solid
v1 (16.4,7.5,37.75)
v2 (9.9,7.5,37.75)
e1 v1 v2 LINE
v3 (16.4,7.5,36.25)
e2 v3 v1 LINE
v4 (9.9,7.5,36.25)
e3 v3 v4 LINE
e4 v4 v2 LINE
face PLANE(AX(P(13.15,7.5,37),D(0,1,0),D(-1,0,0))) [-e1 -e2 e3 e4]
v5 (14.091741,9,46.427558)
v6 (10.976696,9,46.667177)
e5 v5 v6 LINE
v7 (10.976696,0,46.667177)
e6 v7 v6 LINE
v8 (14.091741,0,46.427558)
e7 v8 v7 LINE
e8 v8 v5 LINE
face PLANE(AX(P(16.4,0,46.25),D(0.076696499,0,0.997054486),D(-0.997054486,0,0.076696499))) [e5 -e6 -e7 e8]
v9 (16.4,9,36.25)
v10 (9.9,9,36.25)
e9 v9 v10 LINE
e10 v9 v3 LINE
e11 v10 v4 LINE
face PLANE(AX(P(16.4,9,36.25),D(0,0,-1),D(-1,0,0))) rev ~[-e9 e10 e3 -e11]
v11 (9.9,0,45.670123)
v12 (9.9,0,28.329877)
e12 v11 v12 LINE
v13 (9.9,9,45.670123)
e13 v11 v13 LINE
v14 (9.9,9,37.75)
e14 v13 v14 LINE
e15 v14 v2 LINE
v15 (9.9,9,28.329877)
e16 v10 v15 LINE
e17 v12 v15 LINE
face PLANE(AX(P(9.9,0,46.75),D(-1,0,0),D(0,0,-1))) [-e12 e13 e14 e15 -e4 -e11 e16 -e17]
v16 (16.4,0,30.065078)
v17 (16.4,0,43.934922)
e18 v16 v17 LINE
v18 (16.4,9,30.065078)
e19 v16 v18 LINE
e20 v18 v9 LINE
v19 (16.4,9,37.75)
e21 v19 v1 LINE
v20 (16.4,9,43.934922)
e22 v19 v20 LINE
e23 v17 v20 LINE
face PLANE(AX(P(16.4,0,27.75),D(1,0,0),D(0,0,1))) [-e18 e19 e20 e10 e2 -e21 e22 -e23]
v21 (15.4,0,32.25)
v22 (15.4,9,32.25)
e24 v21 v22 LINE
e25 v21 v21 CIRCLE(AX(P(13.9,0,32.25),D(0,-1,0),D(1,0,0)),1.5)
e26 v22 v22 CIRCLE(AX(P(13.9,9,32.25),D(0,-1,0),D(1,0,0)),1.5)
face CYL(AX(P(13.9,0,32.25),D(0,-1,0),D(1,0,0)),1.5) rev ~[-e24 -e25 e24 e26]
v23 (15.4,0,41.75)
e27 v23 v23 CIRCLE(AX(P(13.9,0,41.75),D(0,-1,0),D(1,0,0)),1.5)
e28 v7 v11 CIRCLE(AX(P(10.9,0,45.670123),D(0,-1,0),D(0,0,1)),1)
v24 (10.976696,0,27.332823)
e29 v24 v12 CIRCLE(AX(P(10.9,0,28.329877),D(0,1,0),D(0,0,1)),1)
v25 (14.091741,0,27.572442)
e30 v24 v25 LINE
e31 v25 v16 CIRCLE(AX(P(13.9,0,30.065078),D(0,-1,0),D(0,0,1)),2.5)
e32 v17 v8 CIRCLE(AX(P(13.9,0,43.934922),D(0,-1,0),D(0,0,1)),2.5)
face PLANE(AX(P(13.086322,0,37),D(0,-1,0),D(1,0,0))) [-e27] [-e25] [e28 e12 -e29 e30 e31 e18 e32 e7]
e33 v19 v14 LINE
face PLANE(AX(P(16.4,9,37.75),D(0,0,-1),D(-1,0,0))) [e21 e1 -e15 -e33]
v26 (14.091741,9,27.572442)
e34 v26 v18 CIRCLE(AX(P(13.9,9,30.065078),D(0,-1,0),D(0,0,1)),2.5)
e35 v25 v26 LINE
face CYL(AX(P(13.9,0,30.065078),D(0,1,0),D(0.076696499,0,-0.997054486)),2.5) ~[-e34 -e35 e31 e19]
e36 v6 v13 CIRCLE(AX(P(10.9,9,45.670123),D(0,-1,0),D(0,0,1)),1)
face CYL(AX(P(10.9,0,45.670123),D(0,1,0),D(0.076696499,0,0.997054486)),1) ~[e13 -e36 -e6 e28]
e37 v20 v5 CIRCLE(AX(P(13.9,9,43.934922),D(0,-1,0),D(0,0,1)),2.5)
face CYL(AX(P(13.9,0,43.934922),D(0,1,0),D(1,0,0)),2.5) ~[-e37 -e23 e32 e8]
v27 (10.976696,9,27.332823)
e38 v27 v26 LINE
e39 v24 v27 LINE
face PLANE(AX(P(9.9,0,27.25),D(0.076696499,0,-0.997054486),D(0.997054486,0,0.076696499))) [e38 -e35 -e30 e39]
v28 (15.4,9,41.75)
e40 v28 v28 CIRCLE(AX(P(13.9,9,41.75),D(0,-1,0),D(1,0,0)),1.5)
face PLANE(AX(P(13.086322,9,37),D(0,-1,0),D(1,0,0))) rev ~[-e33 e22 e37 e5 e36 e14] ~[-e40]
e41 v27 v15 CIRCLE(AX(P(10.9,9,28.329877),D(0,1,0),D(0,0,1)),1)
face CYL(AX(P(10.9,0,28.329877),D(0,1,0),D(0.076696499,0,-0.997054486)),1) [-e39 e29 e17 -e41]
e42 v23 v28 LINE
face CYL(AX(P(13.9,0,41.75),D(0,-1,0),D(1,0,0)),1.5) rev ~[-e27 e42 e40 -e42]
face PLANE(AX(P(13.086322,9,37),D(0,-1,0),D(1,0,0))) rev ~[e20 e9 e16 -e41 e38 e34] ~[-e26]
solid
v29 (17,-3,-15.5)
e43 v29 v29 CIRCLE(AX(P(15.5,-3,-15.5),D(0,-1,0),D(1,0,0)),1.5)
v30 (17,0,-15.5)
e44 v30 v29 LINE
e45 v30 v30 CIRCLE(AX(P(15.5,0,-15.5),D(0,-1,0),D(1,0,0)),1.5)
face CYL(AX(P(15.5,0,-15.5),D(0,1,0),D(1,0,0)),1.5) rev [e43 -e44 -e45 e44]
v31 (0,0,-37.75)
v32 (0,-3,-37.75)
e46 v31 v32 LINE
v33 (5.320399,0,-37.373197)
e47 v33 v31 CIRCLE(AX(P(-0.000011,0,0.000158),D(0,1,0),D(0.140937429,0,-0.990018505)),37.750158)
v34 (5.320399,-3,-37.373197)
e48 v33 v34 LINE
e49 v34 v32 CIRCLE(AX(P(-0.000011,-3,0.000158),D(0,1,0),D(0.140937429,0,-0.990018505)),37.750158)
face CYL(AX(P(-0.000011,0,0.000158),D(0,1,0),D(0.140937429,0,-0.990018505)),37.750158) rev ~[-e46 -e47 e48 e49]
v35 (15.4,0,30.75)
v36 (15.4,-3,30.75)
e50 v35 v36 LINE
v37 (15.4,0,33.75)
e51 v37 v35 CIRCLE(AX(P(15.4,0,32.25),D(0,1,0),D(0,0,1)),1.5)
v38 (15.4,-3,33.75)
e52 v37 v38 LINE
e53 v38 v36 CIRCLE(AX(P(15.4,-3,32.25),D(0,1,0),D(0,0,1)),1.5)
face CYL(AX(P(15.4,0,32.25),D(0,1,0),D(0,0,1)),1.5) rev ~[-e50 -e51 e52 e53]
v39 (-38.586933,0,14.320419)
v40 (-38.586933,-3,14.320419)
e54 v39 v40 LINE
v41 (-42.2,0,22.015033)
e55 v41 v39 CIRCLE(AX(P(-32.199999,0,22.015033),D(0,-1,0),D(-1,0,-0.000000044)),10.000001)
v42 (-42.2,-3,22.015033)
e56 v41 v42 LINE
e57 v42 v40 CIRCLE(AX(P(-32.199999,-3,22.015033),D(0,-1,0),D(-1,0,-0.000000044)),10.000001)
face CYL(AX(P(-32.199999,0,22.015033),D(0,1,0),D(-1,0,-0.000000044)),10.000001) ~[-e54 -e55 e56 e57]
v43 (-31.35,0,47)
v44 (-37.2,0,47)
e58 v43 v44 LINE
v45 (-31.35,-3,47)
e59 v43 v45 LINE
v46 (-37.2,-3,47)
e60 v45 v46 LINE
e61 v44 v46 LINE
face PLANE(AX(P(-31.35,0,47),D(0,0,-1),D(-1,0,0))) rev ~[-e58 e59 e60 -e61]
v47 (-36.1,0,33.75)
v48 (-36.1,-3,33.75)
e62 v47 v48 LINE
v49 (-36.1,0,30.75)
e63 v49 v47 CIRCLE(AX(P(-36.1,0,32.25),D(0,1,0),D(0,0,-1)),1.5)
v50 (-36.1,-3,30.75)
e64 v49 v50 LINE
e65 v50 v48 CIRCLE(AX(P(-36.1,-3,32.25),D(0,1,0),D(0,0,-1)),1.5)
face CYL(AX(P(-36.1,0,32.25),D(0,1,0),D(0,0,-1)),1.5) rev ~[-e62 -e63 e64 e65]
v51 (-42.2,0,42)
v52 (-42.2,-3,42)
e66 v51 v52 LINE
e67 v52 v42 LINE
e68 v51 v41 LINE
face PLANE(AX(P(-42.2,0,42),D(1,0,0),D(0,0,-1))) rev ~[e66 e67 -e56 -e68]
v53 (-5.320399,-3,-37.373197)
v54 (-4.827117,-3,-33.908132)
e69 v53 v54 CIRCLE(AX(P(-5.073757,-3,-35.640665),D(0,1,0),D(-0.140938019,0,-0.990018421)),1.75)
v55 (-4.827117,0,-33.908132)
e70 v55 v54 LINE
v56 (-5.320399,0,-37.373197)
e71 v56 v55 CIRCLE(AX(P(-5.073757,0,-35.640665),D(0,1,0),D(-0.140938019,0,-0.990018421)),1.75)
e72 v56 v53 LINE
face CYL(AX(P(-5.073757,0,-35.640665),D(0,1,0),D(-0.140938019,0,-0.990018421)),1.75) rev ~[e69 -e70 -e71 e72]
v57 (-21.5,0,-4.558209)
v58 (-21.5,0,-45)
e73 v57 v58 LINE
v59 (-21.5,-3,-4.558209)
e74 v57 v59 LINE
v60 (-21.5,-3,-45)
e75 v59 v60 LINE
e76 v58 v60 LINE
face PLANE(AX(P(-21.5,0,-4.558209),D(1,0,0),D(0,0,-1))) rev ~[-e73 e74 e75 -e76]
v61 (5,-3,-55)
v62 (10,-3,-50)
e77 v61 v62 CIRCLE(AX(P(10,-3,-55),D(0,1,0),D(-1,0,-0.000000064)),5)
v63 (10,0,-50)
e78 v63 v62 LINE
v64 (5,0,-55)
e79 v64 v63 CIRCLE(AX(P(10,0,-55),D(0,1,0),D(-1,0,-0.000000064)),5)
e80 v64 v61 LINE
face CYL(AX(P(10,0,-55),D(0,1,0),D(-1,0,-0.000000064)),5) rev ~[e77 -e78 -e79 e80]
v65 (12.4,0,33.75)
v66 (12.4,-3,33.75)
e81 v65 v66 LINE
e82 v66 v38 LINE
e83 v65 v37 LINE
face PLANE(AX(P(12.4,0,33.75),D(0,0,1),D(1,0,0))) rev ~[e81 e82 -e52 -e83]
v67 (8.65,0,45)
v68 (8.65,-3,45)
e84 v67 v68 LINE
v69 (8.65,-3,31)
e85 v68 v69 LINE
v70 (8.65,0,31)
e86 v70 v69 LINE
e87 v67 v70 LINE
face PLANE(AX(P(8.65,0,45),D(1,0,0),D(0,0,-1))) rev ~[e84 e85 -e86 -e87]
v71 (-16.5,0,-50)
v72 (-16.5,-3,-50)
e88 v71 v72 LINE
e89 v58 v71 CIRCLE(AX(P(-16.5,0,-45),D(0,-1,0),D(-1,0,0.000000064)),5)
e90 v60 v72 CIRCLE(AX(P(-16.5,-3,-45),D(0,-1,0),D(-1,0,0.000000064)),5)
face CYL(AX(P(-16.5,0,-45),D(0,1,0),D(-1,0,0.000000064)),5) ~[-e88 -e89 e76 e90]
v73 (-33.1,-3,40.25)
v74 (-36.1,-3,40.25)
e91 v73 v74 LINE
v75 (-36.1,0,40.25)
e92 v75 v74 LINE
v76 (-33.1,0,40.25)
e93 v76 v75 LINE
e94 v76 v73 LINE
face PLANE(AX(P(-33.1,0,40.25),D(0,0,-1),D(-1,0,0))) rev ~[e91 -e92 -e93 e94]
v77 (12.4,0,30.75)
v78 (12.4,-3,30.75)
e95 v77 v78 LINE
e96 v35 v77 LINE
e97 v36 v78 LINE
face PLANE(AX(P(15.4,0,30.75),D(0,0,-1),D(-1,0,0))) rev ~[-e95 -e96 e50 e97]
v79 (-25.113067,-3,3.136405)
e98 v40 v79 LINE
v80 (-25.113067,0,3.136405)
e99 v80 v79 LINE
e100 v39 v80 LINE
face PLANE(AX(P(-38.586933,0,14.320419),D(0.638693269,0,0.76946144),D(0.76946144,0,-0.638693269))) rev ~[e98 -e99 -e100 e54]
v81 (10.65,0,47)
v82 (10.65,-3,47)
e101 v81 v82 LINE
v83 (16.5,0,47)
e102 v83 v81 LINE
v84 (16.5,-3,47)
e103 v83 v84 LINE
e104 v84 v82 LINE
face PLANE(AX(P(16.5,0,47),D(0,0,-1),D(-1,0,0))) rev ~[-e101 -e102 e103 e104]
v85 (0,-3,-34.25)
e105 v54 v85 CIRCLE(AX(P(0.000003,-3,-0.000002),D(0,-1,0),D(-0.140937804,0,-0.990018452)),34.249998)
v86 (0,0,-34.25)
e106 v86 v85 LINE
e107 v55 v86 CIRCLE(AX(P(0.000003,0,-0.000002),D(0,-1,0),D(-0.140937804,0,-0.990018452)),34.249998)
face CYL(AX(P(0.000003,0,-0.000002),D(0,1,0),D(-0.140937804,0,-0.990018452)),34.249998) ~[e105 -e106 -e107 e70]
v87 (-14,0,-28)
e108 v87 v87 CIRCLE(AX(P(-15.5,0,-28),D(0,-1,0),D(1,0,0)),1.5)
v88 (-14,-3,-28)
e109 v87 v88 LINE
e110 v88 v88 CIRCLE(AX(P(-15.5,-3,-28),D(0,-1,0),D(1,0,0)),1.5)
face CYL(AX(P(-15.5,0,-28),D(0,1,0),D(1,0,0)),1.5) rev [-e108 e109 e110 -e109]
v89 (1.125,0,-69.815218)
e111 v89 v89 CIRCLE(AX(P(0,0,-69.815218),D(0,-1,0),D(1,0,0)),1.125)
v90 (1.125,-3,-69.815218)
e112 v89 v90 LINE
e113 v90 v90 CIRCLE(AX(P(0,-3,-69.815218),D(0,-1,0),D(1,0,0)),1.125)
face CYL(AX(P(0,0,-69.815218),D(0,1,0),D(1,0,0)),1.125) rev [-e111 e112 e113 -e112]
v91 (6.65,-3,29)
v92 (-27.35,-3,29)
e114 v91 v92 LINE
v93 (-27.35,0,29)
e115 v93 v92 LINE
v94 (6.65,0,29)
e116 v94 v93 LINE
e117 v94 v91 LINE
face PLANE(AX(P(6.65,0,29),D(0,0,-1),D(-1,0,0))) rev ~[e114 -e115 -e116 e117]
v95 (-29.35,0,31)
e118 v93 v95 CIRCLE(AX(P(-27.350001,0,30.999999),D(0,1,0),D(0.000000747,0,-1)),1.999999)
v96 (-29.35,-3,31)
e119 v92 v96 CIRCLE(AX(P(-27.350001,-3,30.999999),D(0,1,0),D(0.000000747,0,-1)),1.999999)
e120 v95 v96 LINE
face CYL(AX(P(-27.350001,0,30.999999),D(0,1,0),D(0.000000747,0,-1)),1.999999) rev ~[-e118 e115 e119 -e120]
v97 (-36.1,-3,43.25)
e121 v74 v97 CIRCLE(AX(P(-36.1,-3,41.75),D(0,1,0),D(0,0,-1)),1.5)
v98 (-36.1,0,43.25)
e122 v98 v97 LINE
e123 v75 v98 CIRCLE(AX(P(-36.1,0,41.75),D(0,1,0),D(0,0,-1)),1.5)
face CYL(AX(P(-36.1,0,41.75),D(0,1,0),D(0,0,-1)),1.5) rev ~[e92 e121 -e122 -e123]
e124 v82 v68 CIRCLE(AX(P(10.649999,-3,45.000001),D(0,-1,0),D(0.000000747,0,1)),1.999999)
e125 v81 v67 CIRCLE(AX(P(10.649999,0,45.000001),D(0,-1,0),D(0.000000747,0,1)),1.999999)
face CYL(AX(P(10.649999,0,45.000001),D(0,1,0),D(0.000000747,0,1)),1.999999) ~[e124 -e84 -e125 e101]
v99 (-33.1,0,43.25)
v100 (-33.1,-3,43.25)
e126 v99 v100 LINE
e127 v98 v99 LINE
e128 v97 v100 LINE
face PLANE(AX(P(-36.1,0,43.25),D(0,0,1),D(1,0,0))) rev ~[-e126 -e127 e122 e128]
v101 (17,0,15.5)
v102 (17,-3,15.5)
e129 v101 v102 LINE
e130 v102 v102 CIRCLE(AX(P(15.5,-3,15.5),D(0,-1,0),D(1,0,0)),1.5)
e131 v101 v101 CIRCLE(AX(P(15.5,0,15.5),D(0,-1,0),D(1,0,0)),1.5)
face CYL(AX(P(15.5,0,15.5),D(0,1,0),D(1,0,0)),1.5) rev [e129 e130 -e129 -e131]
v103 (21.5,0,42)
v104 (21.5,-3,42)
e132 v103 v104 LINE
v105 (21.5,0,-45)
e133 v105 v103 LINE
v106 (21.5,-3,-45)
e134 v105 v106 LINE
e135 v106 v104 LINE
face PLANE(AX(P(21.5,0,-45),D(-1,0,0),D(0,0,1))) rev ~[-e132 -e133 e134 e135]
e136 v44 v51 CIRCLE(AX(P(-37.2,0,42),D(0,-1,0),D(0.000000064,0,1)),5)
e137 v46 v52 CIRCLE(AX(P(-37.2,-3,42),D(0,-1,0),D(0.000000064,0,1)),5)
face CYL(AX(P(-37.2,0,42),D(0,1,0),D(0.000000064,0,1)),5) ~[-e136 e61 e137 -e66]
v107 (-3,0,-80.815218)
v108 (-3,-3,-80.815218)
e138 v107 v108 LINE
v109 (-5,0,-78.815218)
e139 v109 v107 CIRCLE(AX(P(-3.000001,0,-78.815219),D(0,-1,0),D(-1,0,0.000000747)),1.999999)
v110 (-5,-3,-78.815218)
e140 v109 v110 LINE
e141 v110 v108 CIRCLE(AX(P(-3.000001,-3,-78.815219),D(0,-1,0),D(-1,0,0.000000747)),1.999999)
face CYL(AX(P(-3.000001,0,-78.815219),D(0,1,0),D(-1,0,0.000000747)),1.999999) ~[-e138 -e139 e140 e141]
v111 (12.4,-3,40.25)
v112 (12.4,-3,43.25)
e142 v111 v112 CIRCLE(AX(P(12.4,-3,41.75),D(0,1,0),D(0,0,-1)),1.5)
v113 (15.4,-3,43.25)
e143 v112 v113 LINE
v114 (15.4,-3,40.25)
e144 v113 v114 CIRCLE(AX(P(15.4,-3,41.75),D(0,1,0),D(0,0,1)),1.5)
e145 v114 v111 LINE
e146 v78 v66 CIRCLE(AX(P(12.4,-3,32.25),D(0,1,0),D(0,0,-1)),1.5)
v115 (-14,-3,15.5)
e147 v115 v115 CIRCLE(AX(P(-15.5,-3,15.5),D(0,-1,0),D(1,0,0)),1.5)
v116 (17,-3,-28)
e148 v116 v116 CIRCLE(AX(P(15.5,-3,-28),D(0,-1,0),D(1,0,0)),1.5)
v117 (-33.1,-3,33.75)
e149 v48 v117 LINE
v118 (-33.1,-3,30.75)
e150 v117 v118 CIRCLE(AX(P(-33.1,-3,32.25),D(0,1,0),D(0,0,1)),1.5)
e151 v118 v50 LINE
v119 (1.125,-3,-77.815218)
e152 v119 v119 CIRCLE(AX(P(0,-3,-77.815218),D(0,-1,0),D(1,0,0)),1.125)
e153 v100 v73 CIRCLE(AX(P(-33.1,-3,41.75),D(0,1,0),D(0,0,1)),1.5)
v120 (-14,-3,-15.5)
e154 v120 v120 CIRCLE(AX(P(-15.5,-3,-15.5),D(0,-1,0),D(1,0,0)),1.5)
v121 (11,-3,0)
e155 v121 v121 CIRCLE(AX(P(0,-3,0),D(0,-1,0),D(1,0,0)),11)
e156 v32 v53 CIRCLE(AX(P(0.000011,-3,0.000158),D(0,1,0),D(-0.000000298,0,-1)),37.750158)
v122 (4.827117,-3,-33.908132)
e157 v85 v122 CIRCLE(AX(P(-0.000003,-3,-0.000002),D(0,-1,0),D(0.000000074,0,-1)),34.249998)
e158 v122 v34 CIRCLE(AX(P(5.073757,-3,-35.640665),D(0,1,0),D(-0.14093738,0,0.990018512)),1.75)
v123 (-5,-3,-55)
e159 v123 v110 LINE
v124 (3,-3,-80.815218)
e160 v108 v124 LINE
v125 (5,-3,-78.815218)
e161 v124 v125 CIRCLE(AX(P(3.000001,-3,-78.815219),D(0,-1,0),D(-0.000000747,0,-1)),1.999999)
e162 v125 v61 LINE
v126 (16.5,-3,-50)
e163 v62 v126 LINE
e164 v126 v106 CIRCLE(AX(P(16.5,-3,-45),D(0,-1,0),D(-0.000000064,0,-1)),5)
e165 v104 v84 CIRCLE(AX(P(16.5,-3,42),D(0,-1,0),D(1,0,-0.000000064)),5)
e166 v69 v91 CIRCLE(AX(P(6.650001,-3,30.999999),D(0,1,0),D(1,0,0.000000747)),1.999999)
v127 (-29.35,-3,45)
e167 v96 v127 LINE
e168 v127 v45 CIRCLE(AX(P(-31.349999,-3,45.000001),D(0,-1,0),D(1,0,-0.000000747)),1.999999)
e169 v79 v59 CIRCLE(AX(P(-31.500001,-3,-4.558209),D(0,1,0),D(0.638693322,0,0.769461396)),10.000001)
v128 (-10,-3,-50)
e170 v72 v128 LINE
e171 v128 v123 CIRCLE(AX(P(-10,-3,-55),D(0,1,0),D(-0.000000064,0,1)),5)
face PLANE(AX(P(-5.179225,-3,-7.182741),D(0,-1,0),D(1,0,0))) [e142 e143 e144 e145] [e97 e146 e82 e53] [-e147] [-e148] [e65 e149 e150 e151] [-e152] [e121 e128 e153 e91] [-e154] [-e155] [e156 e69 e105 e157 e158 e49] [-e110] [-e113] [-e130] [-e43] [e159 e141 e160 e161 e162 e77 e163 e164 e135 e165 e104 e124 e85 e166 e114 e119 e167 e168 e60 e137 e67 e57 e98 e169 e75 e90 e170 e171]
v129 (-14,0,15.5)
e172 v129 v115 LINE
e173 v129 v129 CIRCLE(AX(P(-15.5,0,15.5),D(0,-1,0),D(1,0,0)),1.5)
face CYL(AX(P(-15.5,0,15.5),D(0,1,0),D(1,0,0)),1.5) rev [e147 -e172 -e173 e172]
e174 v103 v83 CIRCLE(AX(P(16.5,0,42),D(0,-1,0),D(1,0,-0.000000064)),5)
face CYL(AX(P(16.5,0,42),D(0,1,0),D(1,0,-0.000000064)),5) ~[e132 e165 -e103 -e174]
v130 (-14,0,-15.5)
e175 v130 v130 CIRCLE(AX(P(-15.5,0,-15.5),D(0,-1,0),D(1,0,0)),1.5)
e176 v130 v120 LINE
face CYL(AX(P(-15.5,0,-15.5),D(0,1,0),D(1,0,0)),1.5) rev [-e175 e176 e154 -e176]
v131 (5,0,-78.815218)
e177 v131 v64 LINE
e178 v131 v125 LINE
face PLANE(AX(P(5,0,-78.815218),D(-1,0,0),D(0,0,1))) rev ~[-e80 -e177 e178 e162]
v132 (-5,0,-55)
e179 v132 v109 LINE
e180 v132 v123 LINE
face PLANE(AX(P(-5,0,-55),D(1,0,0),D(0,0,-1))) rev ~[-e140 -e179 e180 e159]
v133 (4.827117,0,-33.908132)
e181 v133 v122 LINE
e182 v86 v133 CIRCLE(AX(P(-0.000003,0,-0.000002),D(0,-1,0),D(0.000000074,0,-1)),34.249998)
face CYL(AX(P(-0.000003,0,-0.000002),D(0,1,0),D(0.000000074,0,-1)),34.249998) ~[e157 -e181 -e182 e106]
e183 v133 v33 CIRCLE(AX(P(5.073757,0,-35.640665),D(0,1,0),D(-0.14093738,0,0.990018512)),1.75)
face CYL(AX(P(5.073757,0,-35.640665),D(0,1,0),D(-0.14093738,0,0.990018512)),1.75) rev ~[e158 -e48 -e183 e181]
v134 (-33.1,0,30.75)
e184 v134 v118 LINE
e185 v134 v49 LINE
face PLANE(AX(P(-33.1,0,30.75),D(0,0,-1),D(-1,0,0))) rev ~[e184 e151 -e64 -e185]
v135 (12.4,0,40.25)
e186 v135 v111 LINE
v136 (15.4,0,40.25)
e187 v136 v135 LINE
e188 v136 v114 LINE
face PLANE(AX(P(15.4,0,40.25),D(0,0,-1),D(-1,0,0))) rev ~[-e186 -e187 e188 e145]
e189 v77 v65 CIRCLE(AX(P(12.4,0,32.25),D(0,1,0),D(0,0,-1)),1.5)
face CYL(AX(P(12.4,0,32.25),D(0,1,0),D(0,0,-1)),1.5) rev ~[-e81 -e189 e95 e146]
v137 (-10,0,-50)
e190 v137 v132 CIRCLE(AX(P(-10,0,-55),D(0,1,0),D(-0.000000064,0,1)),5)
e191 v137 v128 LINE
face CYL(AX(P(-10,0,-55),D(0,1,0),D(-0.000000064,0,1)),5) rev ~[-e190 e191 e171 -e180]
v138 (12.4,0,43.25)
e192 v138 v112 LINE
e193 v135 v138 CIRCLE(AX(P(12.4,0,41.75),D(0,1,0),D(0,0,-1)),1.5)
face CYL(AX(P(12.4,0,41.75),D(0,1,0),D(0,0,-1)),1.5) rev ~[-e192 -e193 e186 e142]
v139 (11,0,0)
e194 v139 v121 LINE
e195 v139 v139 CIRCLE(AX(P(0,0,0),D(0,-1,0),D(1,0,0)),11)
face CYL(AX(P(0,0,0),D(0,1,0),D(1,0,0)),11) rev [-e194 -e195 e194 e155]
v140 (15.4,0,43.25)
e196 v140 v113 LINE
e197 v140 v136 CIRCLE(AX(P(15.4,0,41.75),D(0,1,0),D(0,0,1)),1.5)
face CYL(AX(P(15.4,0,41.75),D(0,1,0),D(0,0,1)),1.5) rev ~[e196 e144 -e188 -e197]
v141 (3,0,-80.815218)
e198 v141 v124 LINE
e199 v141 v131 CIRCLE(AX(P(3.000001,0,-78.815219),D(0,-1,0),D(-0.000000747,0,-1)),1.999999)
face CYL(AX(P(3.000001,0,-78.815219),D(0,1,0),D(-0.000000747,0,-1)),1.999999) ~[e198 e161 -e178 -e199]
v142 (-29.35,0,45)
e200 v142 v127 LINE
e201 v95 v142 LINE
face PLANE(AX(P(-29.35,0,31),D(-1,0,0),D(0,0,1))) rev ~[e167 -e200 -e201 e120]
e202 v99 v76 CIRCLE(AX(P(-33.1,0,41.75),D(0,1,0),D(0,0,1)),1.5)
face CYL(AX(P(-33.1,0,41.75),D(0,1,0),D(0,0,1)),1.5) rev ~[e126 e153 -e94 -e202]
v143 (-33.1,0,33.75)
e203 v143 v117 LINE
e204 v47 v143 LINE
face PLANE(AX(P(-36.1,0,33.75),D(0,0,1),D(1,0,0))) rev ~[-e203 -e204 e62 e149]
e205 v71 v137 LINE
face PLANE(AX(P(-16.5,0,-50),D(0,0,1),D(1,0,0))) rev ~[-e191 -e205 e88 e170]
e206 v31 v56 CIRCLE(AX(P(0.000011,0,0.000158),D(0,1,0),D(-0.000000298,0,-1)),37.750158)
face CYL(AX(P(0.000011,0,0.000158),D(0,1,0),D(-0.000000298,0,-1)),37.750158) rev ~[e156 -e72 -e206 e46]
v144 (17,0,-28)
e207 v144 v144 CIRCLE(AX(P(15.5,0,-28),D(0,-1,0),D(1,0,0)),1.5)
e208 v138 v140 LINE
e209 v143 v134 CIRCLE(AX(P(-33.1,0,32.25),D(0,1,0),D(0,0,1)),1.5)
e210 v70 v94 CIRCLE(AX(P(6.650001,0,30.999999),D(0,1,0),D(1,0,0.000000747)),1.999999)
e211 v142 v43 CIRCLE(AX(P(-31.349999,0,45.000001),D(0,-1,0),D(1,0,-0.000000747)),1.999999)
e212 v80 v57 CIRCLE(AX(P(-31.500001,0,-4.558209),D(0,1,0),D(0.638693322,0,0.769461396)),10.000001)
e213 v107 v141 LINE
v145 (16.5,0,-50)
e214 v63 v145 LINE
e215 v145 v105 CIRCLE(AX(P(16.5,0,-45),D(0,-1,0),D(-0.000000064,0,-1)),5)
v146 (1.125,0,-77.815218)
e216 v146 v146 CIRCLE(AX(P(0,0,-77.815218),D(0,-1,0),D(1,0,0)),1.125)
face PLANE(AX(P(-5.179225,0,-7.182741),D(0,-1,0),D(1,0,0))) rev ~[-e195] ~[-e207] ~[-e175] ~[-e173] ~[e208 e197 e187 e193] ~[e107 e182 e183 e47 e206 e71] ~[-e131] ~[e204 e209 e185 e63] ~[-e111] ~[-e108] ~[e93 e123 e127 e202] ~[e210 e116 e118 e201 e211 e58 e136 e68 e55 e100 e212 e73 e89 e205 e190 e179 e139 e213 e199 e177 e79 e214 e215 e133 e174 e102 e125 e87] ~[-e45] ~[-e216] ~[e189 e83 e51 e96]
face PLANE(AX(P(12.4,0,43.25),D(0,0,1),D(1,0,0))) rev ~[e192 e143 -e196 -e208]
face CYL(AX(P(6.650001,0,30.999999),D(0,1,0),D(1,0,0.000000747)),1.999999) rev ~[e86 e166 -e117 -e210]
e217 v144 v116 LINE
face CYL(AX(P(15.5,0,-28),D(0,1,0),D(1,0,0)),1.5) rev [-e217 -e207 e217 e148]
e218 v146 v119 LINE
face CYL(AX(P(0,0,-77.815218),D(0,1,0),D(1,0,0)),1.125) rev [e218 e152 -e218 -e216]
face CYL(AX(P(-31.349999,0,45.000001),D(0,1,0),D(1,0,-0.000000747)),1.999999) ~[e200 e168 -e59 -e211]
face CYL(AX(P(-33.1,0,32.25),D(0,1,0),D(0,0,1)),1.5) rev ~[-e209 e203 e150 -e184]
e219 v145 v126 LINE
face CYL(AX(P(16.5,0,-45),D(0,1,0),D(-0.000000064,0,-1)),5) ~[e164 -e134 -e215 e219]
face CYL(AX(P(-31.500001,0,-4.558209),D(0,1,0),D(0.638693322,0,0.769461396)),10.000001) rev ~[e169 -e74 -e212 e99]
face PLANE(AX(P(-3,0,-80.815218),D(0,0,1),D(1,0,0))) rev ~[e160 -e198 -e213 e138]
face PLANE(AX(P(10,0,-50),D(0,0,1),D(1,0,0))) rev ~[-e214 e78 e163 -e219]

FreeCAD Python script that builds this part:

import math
import FreeCAD as App
import Part
import Sketcher
Q = App.Units.Quantity


def edges_at(feature, points):
    """Names of the edges that pass closest to the given points."""
    edges = feature.Shape.Edges
    near = lambda p: min(range(len(edges)), key=lambda i: edges[i].distToShape(Part.Vertex(*p))[0])
    return sorted({f"Edge{near(p) + 1}" for p in points})


def add_polygon(sketch, points):
    """Adds a closed chain of lines whose ends are joined by coincident constraints."""
    first, n = sketch.GeometryCount, len(points)
    for a, b in zip(points, points[1:] + points[:1]):
        sketch.addGeometry(Part.LineSegment(App.Vector(*a, 0), App.Vector(*b, 0)), False)
    for i in range(n):
        sketch.addConstraint(Sketcher.Constraint("Coincident", first + i, 2, first + (i + 1) % n, 1))

doc = App.newDocument("Part")
body = doc.addObject("PartDesign::Body", "Body")

# Sketch on XZ plane
sketch1 = doc.addObject("Sketcher::SketchObject", "Sketch")
body.addObject(sketch1)
sketch1.AttachmentSupport = (doc.XZ_Plane, [""])
sketch1.MapMode = "FlatFace"
sketch1.addGeometry([
    Part.ArcOfCircle(Part.Circle(App.Vector(16.5, -45, 0), App.Vector(0, 0, 1), 5), math.radians(-90.000004), math.radians(0.000004)),  # 0
    Part.LineSegment(App.Vector(21.5, -45, 0), App.Vector(21.5, 42, 0)),  # 1
    Part.ArcOfCircle(Part.Circle(App.Vector(16.5, 42, 0), App.Vector(0, 0, 1), 5), math.radians(-0.000004), math.radians(90.000004)),  # 2
    Part.LineSegment(App.Vector(16.5, 47, 0), App.Vector(10.65, 47, 0)),  # 3
    Part.ArcOfCircle(Part.Circle(App.Vector(10.649999, 45.000001, 0), App.Vector(0, 0, 1), 1.999999), math.radians(89.999957), math.radians(180.000043)),  # 4
    Part.LineSegment(App.Vector(8.65, 45, 0), App.Vector(8.65, 31, 0)),  # 5
    Part.ArcOfCircle(Part.Circle(App.Vector(6.650001, 30.999999, 0), App.Vector(0, 0, 1), 1.999999), math.radians(-90.000043), math.radians(0.000043)),  # 6
    Part.LineSegment(App.Vector(6.65, 29, 0), App.Vector(-27.35, 29, 0)),  # 7
    Part.ArcOfCircle(Part.Circle(App.Vector(-27.350001, 30.999999, 0), App.Vector(0, 0, 1), 1.999999), math.radians(179.999957), math.radians(270.000043)),  # 8
    Part.LineSegment(App.Vector(-29.35, 31, 0), App.Vector(-29.35, 45, 0)),  # 9
    Part.ArcOfCircle(Part.Circle(App.Vector(-31.349999, 45.000001, 0), App.Vector(0, 0, 1), 1.999999), math.radians(-0.000043), math.radians(90.000043)),  # 10
    Part.LineSegment(App.Vector(-31.35, 47, 0), App.Vector(-37.2, 47, 0)),  # 11
    Part.ArcOfCircle(Part.Circle(App.Vector(-37.2, 42, 0), App.Vector(0, 0, 1), 5), math.radians(89.999996), math.radians(180.000004)),  # 12
    Part.LineSegment(App.Vector(-42.2, 42, 0), App.Vector(-42.2, 22.015033, 0)),  # 13
    Part.ArcOfCircle(Part.Circle(App.Vector(-32.199999, 22.015033, 0), App.Vector(0, 0, 1), 10.000001), math.radians(-179.999998), math.radians(-129.694453)),  # 14
    Part.LineSegment(App.Vector(-38.586933, 14.320419, 0), App.Vector(-25.113067, 3.136405, 0)),  # 15
    Part.ArcOfCircle(Part.Circle(App.Vector(-31.500001, -4.558209, 0), App.Vector(0, 0, 1), 10.000001), math.radians(0.000002), math.radians(50.305547)),  # 16
    Part.LineSegment(App.Vector(-21.5, -4.558209, 0), App.Vector(-21.5, -45, 0)),  # 17
    Part.ArcOfCircle(Part.Circle(App.Vector(-16.5, -45, 0), App.Vector(0, 0, 1), 5), math.radians(179.999996), math.radians(270.000004)),  # 18
    Part.LineSegment(App.Vector(-16.5, -50, 0), App.Vector(-10, -50, 0)),  # 19
    Part.ArcOfCircle(Part.Circle(App.Vector(-10, -55, 0), App.Vector(0, 0, 1), 5), math.radians(-0.000004), math.radians(90.000004)),  # 20
    Part.LineSegment(App.Vector(-5, -55, 0), App.Vector(-5, -78.815218, 0)),  # 21
    Part.ArcOfCircle(Part.Circle(App.Vector(-3.000001, -78.815219, 0), App.Vector(0, 0, 1), 1.999999), math.radians(179.999957), math.radians(270.000043)),  # 22
    Part.LineSegment(App.Vector(-3, -80.815218, 0), App.Vector(3, -80.815218, 0)),  # 23
    Part.ArcOfCircle(Part.Circle(App.Vector(3.000001, -78.815219, 0), App.Vector(0, 0, 1), 1.999999), math.radians(-90.000043), math.radians(0.000043)),  # 24
    Part.LineSegment(App.Vector(5, -78.815218, 0), App.Vector(5, -55, 0)),  # 25
    Part.ArcOfCircle(Part.Circle(App.Vector(10, -55, 0), App.Vector(0, 0, 1), 5), math.radians(89.999996), math.radians(180.000004)),  # 26
    Part.LineSegment(App.Vector(10, -50, 0), App.Vector(16.5, -50, 0)),  # 27
    Part.Circle(App.Vector(-15.5, -28, 0), App.Vector(0, 0, 1), 1.5),  # 28
    Part.Circle(App.Vector(0, -77.815218, 0), App.Vector(0, 0, 1), 1.125),  # 29
    Part.Circle(App.Vector(0, -69.815218, 0), App.Vector(0, 0, 1), 1.125),  # 30
    Part.ArcOfCircle(Part.Circle(App.Vector(0.000003, -0.000002, 0), App.Vector(0, 0, 1), 34.249998), math.radians(-98.102117), math.radians(-90.000004)),  # 31
    Part.ArcOfCircle(Part.Circle(App.Vector(-0.000003, -0.000002, 0), App.Vector(0, 0, 1), 34.249998), math.radians(-89.999996), math.radians(-81.897883)),  # 32
    Part.ArcOfCircle(Part.Circle(App.Vector(5.073757, -35.640665, 0), App.Vector(0, 0, 1), 1.75), math.radians(-81.897871), math.radians(98.102092)),  # 33
    Part.ArcOfCircle(Part.Circle(App.Vector(-0.000011, 0.000158, 0), App.Vector(0, 0, 1), 37.750158), math.radians(-89.999983), math.radians(-81.897905)),  # 34
    Part.ArcOfCircle(Part.Circle(App.Vector(0.000011, 0.000158, 0), App.Vector(0, 0, 1), 37.750158), math.radians(-98.102095), math.radians(-90.000017)),  # 35
    Part.ArcOfCircle(Part.Circle(App.Vector(-5.073757, -35.640665, 0), App.Vector(0, 0, 1), 1.75), math.radians(81.897908), math.radians(261.897871)),  # 36
    Part.Circle(App.Vector(15.5, -28, 0), App.Vector(0, 0, 1), 1.5),  # 37
    Part.Circle(App.Vector(-15.5, -15.5, 0), App.Vector(0, 0, 1), 1.5),  # 38
    Part.LineSegment(App.Vector(-33.1, 30.75, 0), App.Vector(-36.1, 30.75, 0)),  # 39
    Part.ArcOfCircle(Part.Circle(App.Vector(-36.1, 32.25, 0), App.Vector(0, 0, 1), 1.5), math.radians(90), math.radians(270)),  # 40
    Part.LineSegment(App.Vector(-36.1, 33.75, 0), App.Vector(-33.1, 33.75, 0)),  # 41
    Part.ArcOfCircle(Part.Circle(App.Vector(-33.1, 32.25, 0), App.Vector(0, 0, 1), 1.5), math.radians(-90), math.radians(90)),  # 42
    Part.ArcOfCircle(Part.Circle(App.Vector(-33.1, 41.75, 0), App.Vector(0, 0, 1), 1.5), math.radians(-90), math.radians(90)),  # 43
    Part.LineSegment(App.Vector(-33.1, 40.25, 0), App.Vector(-36.1, 40.25, 0)),  # 44
    Part.ArcOfCircle(Part.Circle(App.Vector(-36.1, 41.75, 0), App.Vector(0, 0, 1), 1.5), math.radians(90), math.radians(270)),  # 45
    Part.LineSegment(App.Vector(-36.1, 43.25, 0), App.Vector(-33.1, 43.25, 0)),  # 46
    Part.Circle(App.Vector(-15.5, 15.5, 0), App.Vector(0, 0, 1), 1.5),  # 47
    Part.Circle(App.Vector(0, 0, 0), App.Vector(0, 0, 1), 11),  # 48
    Part.Circle(App.Vector(15.5, -15.5, 0), App.Vector(0, 0, 1), 1.5),  # 49
    Part.Circle(App.Vector(15.5, 15.5, 0), App.Vector(0, 0, 1), 1.5),  # 50
    Part.ArcOfCircle(Part.Circle(App.Vector(15.4, 32.25, 0), App.Vector(0, 0, 1), 1.5), math.radians(-90), math.radians(90)),  # 51
    Part.LineSegment(App.Vector(15.4, 30.75, 0), App.Vector(12.4, 30.75, 0)),  # 52
    Part.ArcOfCircle(Part.Circle(App.Vector(12.4, 32.25, 0), App.Vector(0, 0, 1), 1.5), math.radians(90), math.radians(270)),  # 53
    Part.LineSegment(App.Vector(12.4, 33.75, 0), App.Vector(15.4, 33.75, 0)),  # 54
    Part.ArcOfCircle(Part.Circle(App.Vector(15.4, 41.75, 0), App.Vector(0, 0, 1), 1.5), math.radians(-90), math.radians(90)),  # 55
    Part.LineSegment(App.Vector(15.4, 40.25, 0), App.Vector(12.4, 40.25, 0)),  # 56
    Part.ArcOfCircle(Part.Circle(App.Vector(12.4, 41.75, 0), App.Vector(0, 0, 1), 1.5), math.radians(90), math.radians(270)),  # 57
    Part.LineSegment(App.Vector(12.4, 43.25, 0), App.Vector(15.4, 43.25, 0)),  # 58
], False)
sketch1.addConstraint([
    Sketcher.Constraint("Coincident", 0, 2, 1, 1),
    Sketcher.Constraint("Coincident", 1, 2, 2, 1),
    Sketcher.Constraint("Coincident", 2, 2, 3, 1),
    Sketcher.Constraint("Coincident", 3, 2, 4, 1),
    Sketcher.Constraint("Coincident", 4, 2, 5, 1),
    Sketcher.Constraint("Coincident", 5, 2, 6, 2),
    Sketcher.Constraint("Coincident", 6, 1, 7, 1),
    Sketcher.Constraint("Coincident", 7, 2, 8, 2),
    Sketcher.Constraint("Coincident", 8, 1, 9, 1),
    Sketcher.Constraint("Coincident", 9, 2, 10, 1),
    Sketcher.Constraint("Coincident", 10, 2, 11, 1),
    Sketcher.Constraint("Coincident", 11, 2, 12, 1),
    Sketcher.Constraint("Coincident", 12, 2, 13, 1),
    Sketcher.Constraint("Coincident", 13, 2, 14, 1),
    Sketcher.Constraint("Coincident", 14, 2, 15, 1),
    Sketcher.Constraint("Coincident", 15, 2, 16, 2),
    Sketcher.Constraint("Coincident", 16, 1, 17, 1),
    Sketcher.Constraint("Coincident", 17, 2, 18, 1),
    Sketcher.Constraint("Coincident", 18, 2, 19, 1),
    Sketcher.Constraint("Coincident", 19, 2, 20, 2),
    Sketcher.Constraint("Coincident", 20, 1, 21, 1),
    Sketcher.Constraint("Coincident", 21, 2, 22, 1),
    Sketcher.Constraint("Coincident", 22, 2, 23, 1),
    Sketcher.Constraint("Coincident", 23, 2, 24, 1),
    Sketcher.Constraint("Coincident", 24, 2, 25, 1),
    Sketcher.Constraint("Coincident", 25, 2, 26, 2),
    Sketcher.Constraint("Coincident", 26, 1, 27, 1),
    Sketcher.Constraint("Coincident", 27, 2, 0, 1),
    Sketcher.Constraint("Coincident", 31, 2, 32, 1),
    Sketcher.Constraint("Coincident", 32, 2, 33, 2),
    Sketcher.Constraint("Coincident", 33, 1, 34, 2),
    Sketcher.Constraint("Coincident", 34, 1, 35, 2),
    Sketcher.Constraint("Coincident", 35, 1, 36, 2),
    Sketcher.Constraint("Coincident", 36, 1, 31, 1),
    Sketcher.Constraint("Coincident", 39, 2, 40, 2),
    Sketcher.Constraint("Coincident", 40, 1, 41, 1),
    Sketcher.Constraint("Coincident", 41, 2, 42, 2),
    Sketcher.Constraint("Coincident", 42, 1, 39, 1),
    Sketcher.Constraint("Coincident", 43, 1, 44, 1),
    Sketcher.Constraint("Coincident", 44, 2, 45, 2),
    Sketcher.Constraint("Coincident", 45, 1, 46, 1),
    Sketcher.Constraint("Coincident", 46, 2, 43, 2),
    Sketcher.Constraint("Coincident", 51, 1, 52, 1),
    Sketcher.Constraint("Coincident", 52, 2, 53, 2),
    Sketcher.Constraint("Coincident", 53, 1, 54, 1),
    Sketcher.Constraint("Coincident", 54, 2, 51, 2),
    Sketcher.Constraint("Coincident", 55, 1, 56, 1),
    Sketcher.Constraint("Coincident", 56, 2, 57, 2),
    Sketcher.Constraint("Coincident", 57, 1, 58, 1),
    Sketcher.Constraint("Coincident", 58, 2, 55, 2),
    Sketcher.Constraint("Vertical", 1),
    Sketcher.Constraint("Horizontal", 3),
    Sketcher.Constraint("Vertical", 5),
    Sketcher.Constraint("Horizontal", 7),
    Sketcher.Constraint("Vertical", 9),
    Sketcher.Constraint("Horizontal", 11),
    Sketcher.Constraint("Vertical", 13),
    Sketcher.Constraint("Vertical", 17),
    Sketcher.Constraint("Horizontal", 19),
    Sketcher.Constraint("Vertical", 21),
    Sketcher.Constraint("Horizontal", 23),
    Sketcher.Constraint("Vertical", 25),
    Sketcher.Constraint("Horizontal", 27),
    Sketcher.Constraint("Horizontal", 39),
    Sketcher.Constraint("Horizontal", 41),
    Sketcher.Constraint("Horizontal", 44),
    Sketcher.Constraint("Horizontal", 46),
    Sketcher.Constraint("Horizontal", 52),
    Sketcher.Constraint("Horizontal", 54),
    Sketcher.Constraint("Horizontal", 56),
    Sketcher.Constraint("Horizontal", 58),
    Sketcher.Constraint("Coincident", 31, 3, -1, 1),
    Sketcher.Constraint("Coincident", 32, 3, -1, 1),
    Sketcher.Constraint("Coincident", 48, 3, -1, 1),
    Sketcher.Constraint("PointOnObject", 29, 3, -2),
    Sketcher.Constraint("PointOnObject", 30, 3, -2),
    Sketcher.Constraint("PointOnObject", 31, 2, -2),
    Sketcher.Constraint("PointOnObject", 34, 1, -2),
    Sketcher.Constraint("Diameter", 28, Q("3 mm")),
    Sketcher.Constraint("Diameter", 37, Q("3 mm")),
    Sketcher.Constraint("Diameter", 38, Q("3 mm")),
    Sketcher.Constraint("Diameter", 47, Q("3 mm")),
    Sketcher.Constraint("Diameter", 48, Q("22 mm")),
    Sketcher.Constraint("Diameter", 49, Q("3 mm")),
    Sketcher.Constraint("Diameter", 50, Q("3 mm")),
    Sketcher.Constraint("Radius", 0, Q("5 mm")),
    Sketcher.Constraint("Radius", 2, Q("5 mm")),
    Sketcher.Constraint("Radius", 4, Q("1.999999 mm")),
    Sketcher.Constraint("Radius", 6, Q("1.999999 mm")),
    Sketcher.Constraint("Radius", 8, Q("1.999999 mm")),
    Sketcher.Constraint("Radius", 10, Q("1.999999 mm")),
    Sketcher.Constraint("Radius", 12, Q("5 mm")),
    Sketcher.Constraint("Radius", 14, Q("10.000001 mm")),
    Sketcher.Constraint("Radius", 16, Q("10.000001 mm")),
    Sketcher.Constraint("Radius", 18, Q("5 mm")),
    Sketcher.Constraint("Radius", 20, Q("5 mm")),
    Sketcher.Constraint("Radius", 22, Q("1.999999 mm")),
    Sketcher.Constraint("Radius", 24, Q("1.999999 mm")),
    Sketcher.Constraint("Radius", 26, Q("5 mm")),
    Sketcher.Constraint("Radius", 40, Q("1.5 mm")),
    Sketcher.Constraint("Radius", 43, Q("1.5 mm")),
    Sketcher.Constraint("Radius", 51, Q("1.5 mm")),
    Sketcher.Constraint("Radius", 55, Q("1.5 mm")),
    Sketcher.Constraint("Diameter", 29, Q("2.25 mm")),
    Sketcher.Constraint("Diameter", 30, Q("2.25 mm")),
    Sketcher.Constraint("DistanceX", 7, 2, 7, 1, Q("34 mm")),
    Sketcher.Constraint("DistanceX", 23, 1, 23, 2, Q("6 mm")),
    Sketcher.Constraint("DistanceX", 39, 2, 39, 1, Q("3 mm")),
    Sketcher.Constraint("DistanceX", 41, 1, 41, 2, Q("3 mm")),
    Sketcher.Constraint("DistanceX", 44, 2, 44, 1, Q("3 mm")),
    Sketcher.Constraint("DistanceX", 46, 1, 46, 2, Q("3 mm")),
    Sketcher.Constraint("DistanceX", 52, 2, 52, 1, Q("3 mm")),
    Sketcher.Constraint("DistanceX", 54, 1, 54, 2, Q("3 mm")),
    Sketcher.Constraint("DistanceX", 56, 2, 56, 1, Q("3 mm")),
    Sketcher.Constraint("DistanceX", 58, 1, 58, 2, Q("3 mm")),
    Sketcher.Constraint("DistanceY", 1, 1, 1, 2, Q("87 mm")),
    Sketcher.Constraint("DistanceY", 5, 2, 5, 1, Q("14 mm")),
    Sketcher.Constraint("DistanceY", 9, 1, 9, 2, Q("14 mm")),
    Sketcher.Constraint("Radius", 31, Q("34.249998 mm")),
    Sketcher.Constraint("Radius", 33, Q("1.75 mm")),
    Sketcher.Constraint("Radius", 36, Q("1.75 mm")),
    Sketcher.Constraint("DistanceX", 19, 1, 19, 2, Q("6.5 mm")),
    Sketcher.Constraint("DistanceX", 27, 1, 27, 2, Q("6.5 mm")),
    Sketcher.Constraint("DistanceY", 0, 3, -1, 1, Q("45 mm")),
    Sketcher.Constraint("DistanceY", -1, 1, 2, 3, Q("42 mm")),
    Sketcher.Constraint("DistanceY", -1, 1, 6, 3, Q("30.999999 mm")),
    Sketcher.Constraint("DistanceY", -1, 1, 10, 3, Q("45.000001 mm")),
    Sketcher.Constraint("DistanceY", 18, 3, -1, 1, Q("45 mm")),
    Sketcher.Constraint("DistanceX", 20, 3, -1, 1, Q("10 mm")),
    Sketcher.Constraint("DistanceX", -1, 1, 24, 3, Q("3.000001 mm")),
    Sketcher.Constraint("DistanceY", 28, 3, -1, 1, Q("28 mm")),
    Sketcher.Constraint("DistanceY", 37, 3, -1, 1, Q("28 mm")),
    Sketcher.Constraint("DistanceY", 0, 2, -1, 1, Q("45 mm")),
    Sketcher.Constraint("DistanceY", -1, 1, 4, 2, Q("45 mm")),
    Sketcher.Constraint("DistanceY", -1, 1, 8, 1, Q("31 mm")),
    Sketcher.Constraint("DistanceY", -1, 1, 12, 2, Q("42 mm")),
    Sketcher.Constraint("DistanceY", 17, 2, -1, 1, Q("45 mm")),
    Sketcher.Constraint("DistanceX", 19, 2, -1, 1, Q("10 mm")),
    Sketcher.Constraint("DistanceY", 20, 1, -1, 1, Q("55 mm")),
    Sketcher.Constraint("DistanceX", 22, 2, -1, 1, Q("3 mm")),
    Sketcher.Constraint("DistanceY", 25, 2, -1, 1, Q("55 mm")),
    Sketcher.Constraint("DistanceX", -1, 1, 26, 1, Q("10 mm")),
    Sketcher.Constraint("DistanceX", 3, 2, 3, 1, Q("5.85 mm")),
    Sketcher.Constraint("DistanceX", 11, 2, 11, 1, Q("5.85 mm")),
    Sketcher.Constraint("DistanceX", -1, 1, 0, 3, Q("16.5 mm")),
    Sketcher.Constraint("DistanceX", 12, 3, -1, 1, Q("37.2 mm")),
    Sketcher.Constraint("DistanceX", 16, 3, -1, 1, Q("31.500001 mm")),
    Sketcher.Constraint("DistanceX", 28, 3, -1, 1, Q("15.5 mm")),
    Sketcher.Constraint("DistanceX", -1, 1, 37, 3, Q("15.5 mm")),
    Sketcher.Constraint("DistanceX", 38, 3, -1, 1, Q("15.5 mm")),
    Sketcher.Constraint("DistanceY", 38, 3, -1, 1, Q("15.5 mm")),
    Sketcher.Constraint("DistanceX", 40, 3, -1, 1, Q("36.1 mm")),
    Sketcher.Constraint("DistanceX", 42, 3, -1, 1, Q("33.1 mm")),
    Sketcher.Constraint("DistanceX", 43, 3, -1, 1, Q("33.1 mm")),
    Sketcher.Constraint("DistanceX", 45, 3, -1, 1, Q("36.1 mm")),
    Sketcher.Constraint("DistanceX", 47, 3, -1, 1, Q("15.5 mm")),
    Sketcher.Constraint("DistanceY", -1, 1, 47, 3, Q("15.5 mm")),
    Sketcher.Constraint("DistanceX", -1, 1, 49, 3, Q("15.5 mm")),
    Sketcher.Constraint("DistanceY", 49, 3, -1, 1, Q("15.5 mm")),
    Sketcher.Constraint("DistanceX", -1, 1, 50, 3, Q("15.5 mm")),
    Sketcher.Constraint("DistanceY", -1, 1, 50, 3, Q("15.5 mm")),
    Sketcher.Constraint("DistanceX", -1, 1, 51, 3, Q("15.4 mm")),
    Sketcher.Constraint("DistanceX", -1, 1, 53, 3, Q("12.4 mm")),
    Sketcher.Constraint("DistanceX", -1, 1, 55, 3, Q("15.4 mm")),
    Sketcher.Constraint("DistanceX", -1, 1, 57, 3, Q("12.4 mm")),
    Sketcher.Constraint("DistanceX", -1, 1, 2, 2, Q("16.5 mm")),
    Sketcher.Constraint("DistanceX", 11, 2, -1, 1, Q("37.2 mm")),
    Sketcher.Constraint("DistanceX", 39, 2, -1, 1, Q("36.1 mm")),
    Sketcher.Constraint("DistanceX", 40, 1, -1, 1, Q("36.1 mm")),
    Sketcher.Constraint("DistanceX", 43, 1, -1, 1, Q("33.1 mm")),
    Sketcher.Constraint("DistanceX", 45, 1, -1, 1, Q("36.1 mm")),
    Sketcher.Constraint("DistanceX", -1, 1, 51, 1, Q("15.4 mm")),
    Sketcher.Constraint("DistanceX", -1, 1, 53, 1, Q("12.4 mm")),
    Sketcher.Constraint("DistanceX", -1, 1, 55, 1, Q("15.4 mm")),
    Sketcher.Constraint("DistanceX", -1, 1, 57, 1, Q("12.4 mm")),
    Sketcher.Constraint("DistanceX", -1, 1, 4, 3, Q("10.649999 mm")),
    Sketcher.Constraint("DistanceX", 8, 3, -1, 1, Q("27.350001 mm")),
    Sketcher.Constraint("DistanceY", -1, 1, 40, 3, Q("32.25 mm")),
    Sketcher.Constraint("DistanceY", -1, 1, 43, 3, Q("41.75 mm")),
    Sketcher.Constraint("DistanceY", -1, 1, 51, 3, Q("32.25 mm")),
    Sketcher.Constraint("DistanceY", -1, 1, 55, 3, Q("41.75 mm")),
    Sketcher.Constraint("DistanceX", -1, 1, 6, 1, Q("6.65 mm")),
    Sketcher.Constraint("DistanceY", 34, 1, -1, 1, Q("37.75 mm")),
    Sketcher.Constraint("Radius", 34, Q("37.750158 mm")),
    Sketcher.Constraint("Radius", 35, Q("37.750158 mm")),
    Sketcher.Constraint("DistanceY", 17, 2, 17, 1, Q("40.441791 mm")),
    Sketcher.Constraint("DistanceY", 21, 2, 21, 1, Q("23.815218 mm")),
    Sketcher.Constraint("DistanceY", 25, 1, 25, 2, Q("23.815218 mm")),
    Sketcher.Constraint("DistanceX", -1, 1, 33, 1, Q("5.320399 mm")),
    Sketcher.Constraint("DistanceX", 35, 1, -1, 1, Q("5.320399 mm")),
    Sketcher.Constraint("DistanceY", 13, 2, 13, 1, Q("19.984967 mm")),
    Sketcher.Constraint("DistanceY", 16, 3, -1, 1, Q("4.558209 mm")),
    Sketcher.Constraint("DistanceY", 22, 3, -1, 1, Q("78.815219 mm")),
    Sketcher.Constraint("DistanceY", 29, 3, -1, 1, Q("77.815218 mm")),
    Sketcher.Constraint("DistanceY", 30, 3, -1, 1, Q("69.815218 mm")),
    Sketcher.Constraint("DistanceY", -1, 1, 14, 2, Q("14.320419 mm")),
    Sketcher.Constraint("DistanceY", 32, 2, -1, 1, Q("33.908132 mm")),
    Sketcher.Constraint("DistanceY", 36, 1, -1, 1, Q("33.908132 mm")),
    Sketcher.Constraint("Distance", 15, Q("17.510775 mm")),
    Sketcher.Constraint("DistanceY", -1, 1, 14, 3, Q("22.015033 mm")),
    Sketcher.Constraint("DistanceX", -1, 1, 33, 3, Q("5.073757 mm")),
    Sketcher.Constraint("DistanceX", 36, 3, -1, 1, Q("5.073757 mm")),
])
pad1 = doc.addObject("PartDesign::Pad", "Pad")
body.addObject(pad1)
pad1.Profile = sketch1
pad1.Length = 3
body2 = doc.addObject("PartDesign::Body", "Body001")

# Sketch on XZ plane
sketch2 = doc.addObject("Sketcher::SketchObject", "Sketch001")
body2.addObject(sketch2)
sketch2.AttachmentSupport = (doc.getObject("XZ_Plane001"), [""])
sketch2.MapMode = "FlatFace"
add_polygon(sketch2, [(16.4, 27.8), (16.4, 46.2), (9.9, 46.8), (9.9, 27.2)])  # lines 0-3
sketch2.addGeometry(Part.Circle(App.Vector(13.9, 32.2, 0), App.Vector(0, 0, 1), 1.5), False)  # 4
sketch2.addGeometry(Part.Circle(App.Vector(13.9, 41.8, 0), App.Vector(0, 0, 1), 1.5), False)  # 5
sketch2.addConstraint([
    Sketcher.Constraint("Vertical", 0),
    Sketcher.Constraint("Vertical", 2),
    Sketcher.Constraint("Equal", 4, 5),
    Sketcher.Constraint("Vertical", 4, 3, 5, 3),
    Sketcher.Constraint("Equal", 1, 3),
    Sketcher.Constraint("Diameter", 4, Q("3 mm")),
    Sketcher.Constraint("DistanceY", 0, 1, 0, 2, Q("18.5 mm")),
    Sketcher.Constraint("DistanceY", 2, 2, 2, 1, Q("19.5 mm")),
    Sketcher.Constraint("DistanceY", 4, 3, 0, 2, Q("14 mm")),
    Sketcher.Constraint("DistanceX", 1, 2, 5, 3, Q("4 mm")),
    Sketcher.Constraint("DistanceY", 5, 3, 1, 2, Q("5 mm")),
    Sketcher.Constraint("DistanceX", -1, 1, 4, 3, Q("13.9 mm")),
    Sketcher.Constraint("DistanceX", -1, 1, 0, 2, Q("16.4 mm")),
    Sketcher.Constraint("DistanceY", -1, 1, 4, 3, Q("32.25 mm")),
])
pad2 = doc.addObject("PartDesign::Pad", "Pad001")
body2.addObject(pad2)
pad2.Profile = sketch2
pad2.Length = 9
pad2.Reversed = True

# Sketch on XZ plane
sketch3 = doc.addObject("Sketcher::SketchObject", "Sketch002")
body2.addObject(sketch3)
sketch3.AttachmentSupport = (doc.getObject("XZ_Plane001"), [""])
sketch3.MapMode = "FlatFace"
sketch3.AttachmentOffset = App.Placement(App.Vector(0, 0, -9), App.Rotation())
add_polygon(sketch3, [(16.4, 37.8), (16.4, 36.2), (9.9, 36.2), (9.9, 37.8)])  # lines 0-3
sketch3.addConstraint([
    Sketcher.Constraint("Vertical", 0),
    Sketcher.Constraint("Horizontal", 1),
    Sketcher.Constraint("Vertical", 2),
    Sketcher.Constraint("Horizontal", 3),
    Sketcher.Constraint("DistanceX", 1, 2, 1, 1, Q("6.5 mm")),
    Sketcher.Constraint("DistanceY", 0, 2, 0, 1, Q("1.5 mm")),
    Sketcher.Constraint("DistanceX", -1, 1, 0, 2, Q("16.4 mm")),
    Sketcher.Constraint("DistanceY", -1, 1, 0, 2, Q("36.25 mm")),
])
pocket1 = doc.addObject("PartDesign::Pocket", "Pocket")
body2.addObject(pocket1)
pocket1.Profile = sketch3
pocket1.Length = 1.5
pocket1.Reversed = True
doc.recompute()

fillet = doc.addObject("PartDesign::Fillet", "Fillet")
body2.addObject(fillet)
fillet.Base = (pocket1, edges_at(pocket1, [(9.9, 4.5, 46.75), (9.9, 4.5, 27.25)]))
fillet.Radius = 1
doc.recompute()

fillet2 = doc.addObject("PartDesign::Fillet", "Fillet001")
body2.addObject(fillet2)
fillet2.Base = (fillet, edges_at(fillet, [(16.4, 4.5, 27.75), (16.4, 4.5, 46.25)]))
fillet2.Radius = 2.5

doc.recompute()
